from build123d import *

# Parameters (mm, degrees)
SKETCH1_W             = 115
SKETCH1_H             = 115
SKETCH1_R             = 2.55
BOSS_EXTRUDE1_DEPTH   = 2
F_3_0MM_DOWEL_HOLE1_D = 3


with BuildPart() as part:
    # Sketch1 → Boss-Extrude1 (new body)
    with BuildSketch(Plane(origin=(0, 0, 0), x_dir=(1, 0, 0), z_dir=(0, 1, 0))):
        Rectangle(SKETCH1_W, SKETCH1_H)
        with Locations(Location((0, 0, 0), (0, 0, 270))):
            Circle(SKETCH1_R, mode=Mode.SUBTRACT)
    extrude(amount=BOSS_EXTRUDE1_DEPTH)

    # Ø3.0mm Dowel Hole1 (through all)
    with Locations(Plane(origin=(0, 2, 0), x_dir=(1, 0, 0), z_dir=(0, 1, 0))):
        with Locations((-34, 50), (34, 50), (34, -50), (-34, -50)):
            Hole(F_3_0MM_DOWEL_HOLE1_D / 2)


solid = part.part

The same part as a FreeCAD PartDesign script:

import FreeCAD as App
import Part
import Sketcher
from FreeCAD import Vector

doc = App.newDocument("Part")
body = doc.addObject("PartDesign::Body", "Body")

# Sketch on XZ plane
sketch1 = doc.addObject("Sketcher::SketchObject", "Sketch")
body.addObject(sketch1)
sketch1.AttachmentSupport = (doc.XZ_Plane, [""])
sketch1.MapMode = "FlatFace"
sketch1.addGeometry([
    Part.LineSegment(Vector(-57.5, -57.5, 0), Vector(-57.5, 57.5, 0)),  # 0
    Part.LineSegment(Vector(-57.5, 57.5, 0), Vector(57.5, 57.5, 0)),  # 1
    Part.LineSegment(Vector(57.5, 57.5, 0), Vector(57.5, -57.5, 0)),  # 2
    Part.LineSegment(Vector(57.5, -57.5, 0), Vector(-57.5, -57.5, 0)),  # 3
    Part.Circle(Vector(0, 0, 0), Vector(0, 0, 1), 2.55),  # 4
], False)
sketch1.addConstraint([
    Sketcher.Constraint("Coincident", 0, 2, 1, 1),
    Sketcher.Constraint("Coincident", 1, 2, 2, 1),
    Sketcher.Constraint("Coincident", 2, 2, 3, 1),
    Sketcher.Constraint("Coincident", 3, 2, 0, 1),
    Sketcher.Constraint("Vertical", 0),
    Sketcher.Constraint("Horizontal", 1),
    Sketcher.Constraint("Vertical", 2),
    Sketcher.Constraint("Horizontal", 3),
    Sketcher.Constraint("Coincident", 4, 3, -1, 1),
    Sketcher.Constraint("Symmetric", 0, 2, 2, 2, -1, 1),
    Sketcher.Constraint("Equal", 3, 0),
    Sketcher.Constraint("Diameter", 4, 5.1),
    Sketcher.Constraint("DistanceX", 1, 1, 1, 2, 115.0),
])
pad1 = doc.addObject("PartDesign::Pad", "Pad")
body.addObject(pad1)
pad1.Profile = sketch1
pad1.Length = 2
pad1.Reversed = True

# Sketch on XZ plane
sketch2 = doc.addObject("Sketcher::SketchObject", "Sketch001")
body.addObject(sketch2)
sketch2.AttachmentSupport = (doc.XZ_Plane, [""])
sketch2.MapMode = "FlatFace"
sketch2.AttachmentOffset = App.Placement(Vector(0, 0, -2), App.Rotation())
sketch2.addGeometry([
    Part.Circle(Vector(-34, -50, 0), Vector(0, 0, 1), 1.5),
    Part.Circle(Vector(34, -50, 0), Vector(0, 0, 1), 1.5),
    Part.Circle(Vector(34, 50, 0), Vector(0, 0, 1), 1.5),
    Part.Circle(Vector(-34, 50, 0), Vector(0, 0, 1), 1.5),
], False)
sketch2.addConstraint([
    Sketcher.Constraint("Equal", 0, 1),
    Sketcher.Constraint("Equal", 1, 2),
    Sketcher.Constraint("Equal", 2, 3),
    Sketcher.Constraint("Symmetric", 0, 3, 2, 3, -1, 1),
    Sketcher.Constraint("Symmetric", 1, 3, 3, 3, -1, 1),
    Sketcher.Constraint("Symmetric", 0, 3, 1, 3, -2),
    Sketcher.Constraint("Diameter", 0, 3.0),
    Sketcher.Constraint("DistanceX", 0, 3, -1, 1, 34.0),
    Sketcher.Constraint("DistanceY", 0, 3, -1, 1, 50.0),
])
doc.recompute()
hole = doc.addObject("PartDesign::Hole", "Hole")
body.addObject(hole)
hole.Profile = sketch2
hole.ThreadType = "None"
hole.Diameter = 3
hole.DepthType = "ThroughAll"
hole.Reversed = True

doc.recompute()
